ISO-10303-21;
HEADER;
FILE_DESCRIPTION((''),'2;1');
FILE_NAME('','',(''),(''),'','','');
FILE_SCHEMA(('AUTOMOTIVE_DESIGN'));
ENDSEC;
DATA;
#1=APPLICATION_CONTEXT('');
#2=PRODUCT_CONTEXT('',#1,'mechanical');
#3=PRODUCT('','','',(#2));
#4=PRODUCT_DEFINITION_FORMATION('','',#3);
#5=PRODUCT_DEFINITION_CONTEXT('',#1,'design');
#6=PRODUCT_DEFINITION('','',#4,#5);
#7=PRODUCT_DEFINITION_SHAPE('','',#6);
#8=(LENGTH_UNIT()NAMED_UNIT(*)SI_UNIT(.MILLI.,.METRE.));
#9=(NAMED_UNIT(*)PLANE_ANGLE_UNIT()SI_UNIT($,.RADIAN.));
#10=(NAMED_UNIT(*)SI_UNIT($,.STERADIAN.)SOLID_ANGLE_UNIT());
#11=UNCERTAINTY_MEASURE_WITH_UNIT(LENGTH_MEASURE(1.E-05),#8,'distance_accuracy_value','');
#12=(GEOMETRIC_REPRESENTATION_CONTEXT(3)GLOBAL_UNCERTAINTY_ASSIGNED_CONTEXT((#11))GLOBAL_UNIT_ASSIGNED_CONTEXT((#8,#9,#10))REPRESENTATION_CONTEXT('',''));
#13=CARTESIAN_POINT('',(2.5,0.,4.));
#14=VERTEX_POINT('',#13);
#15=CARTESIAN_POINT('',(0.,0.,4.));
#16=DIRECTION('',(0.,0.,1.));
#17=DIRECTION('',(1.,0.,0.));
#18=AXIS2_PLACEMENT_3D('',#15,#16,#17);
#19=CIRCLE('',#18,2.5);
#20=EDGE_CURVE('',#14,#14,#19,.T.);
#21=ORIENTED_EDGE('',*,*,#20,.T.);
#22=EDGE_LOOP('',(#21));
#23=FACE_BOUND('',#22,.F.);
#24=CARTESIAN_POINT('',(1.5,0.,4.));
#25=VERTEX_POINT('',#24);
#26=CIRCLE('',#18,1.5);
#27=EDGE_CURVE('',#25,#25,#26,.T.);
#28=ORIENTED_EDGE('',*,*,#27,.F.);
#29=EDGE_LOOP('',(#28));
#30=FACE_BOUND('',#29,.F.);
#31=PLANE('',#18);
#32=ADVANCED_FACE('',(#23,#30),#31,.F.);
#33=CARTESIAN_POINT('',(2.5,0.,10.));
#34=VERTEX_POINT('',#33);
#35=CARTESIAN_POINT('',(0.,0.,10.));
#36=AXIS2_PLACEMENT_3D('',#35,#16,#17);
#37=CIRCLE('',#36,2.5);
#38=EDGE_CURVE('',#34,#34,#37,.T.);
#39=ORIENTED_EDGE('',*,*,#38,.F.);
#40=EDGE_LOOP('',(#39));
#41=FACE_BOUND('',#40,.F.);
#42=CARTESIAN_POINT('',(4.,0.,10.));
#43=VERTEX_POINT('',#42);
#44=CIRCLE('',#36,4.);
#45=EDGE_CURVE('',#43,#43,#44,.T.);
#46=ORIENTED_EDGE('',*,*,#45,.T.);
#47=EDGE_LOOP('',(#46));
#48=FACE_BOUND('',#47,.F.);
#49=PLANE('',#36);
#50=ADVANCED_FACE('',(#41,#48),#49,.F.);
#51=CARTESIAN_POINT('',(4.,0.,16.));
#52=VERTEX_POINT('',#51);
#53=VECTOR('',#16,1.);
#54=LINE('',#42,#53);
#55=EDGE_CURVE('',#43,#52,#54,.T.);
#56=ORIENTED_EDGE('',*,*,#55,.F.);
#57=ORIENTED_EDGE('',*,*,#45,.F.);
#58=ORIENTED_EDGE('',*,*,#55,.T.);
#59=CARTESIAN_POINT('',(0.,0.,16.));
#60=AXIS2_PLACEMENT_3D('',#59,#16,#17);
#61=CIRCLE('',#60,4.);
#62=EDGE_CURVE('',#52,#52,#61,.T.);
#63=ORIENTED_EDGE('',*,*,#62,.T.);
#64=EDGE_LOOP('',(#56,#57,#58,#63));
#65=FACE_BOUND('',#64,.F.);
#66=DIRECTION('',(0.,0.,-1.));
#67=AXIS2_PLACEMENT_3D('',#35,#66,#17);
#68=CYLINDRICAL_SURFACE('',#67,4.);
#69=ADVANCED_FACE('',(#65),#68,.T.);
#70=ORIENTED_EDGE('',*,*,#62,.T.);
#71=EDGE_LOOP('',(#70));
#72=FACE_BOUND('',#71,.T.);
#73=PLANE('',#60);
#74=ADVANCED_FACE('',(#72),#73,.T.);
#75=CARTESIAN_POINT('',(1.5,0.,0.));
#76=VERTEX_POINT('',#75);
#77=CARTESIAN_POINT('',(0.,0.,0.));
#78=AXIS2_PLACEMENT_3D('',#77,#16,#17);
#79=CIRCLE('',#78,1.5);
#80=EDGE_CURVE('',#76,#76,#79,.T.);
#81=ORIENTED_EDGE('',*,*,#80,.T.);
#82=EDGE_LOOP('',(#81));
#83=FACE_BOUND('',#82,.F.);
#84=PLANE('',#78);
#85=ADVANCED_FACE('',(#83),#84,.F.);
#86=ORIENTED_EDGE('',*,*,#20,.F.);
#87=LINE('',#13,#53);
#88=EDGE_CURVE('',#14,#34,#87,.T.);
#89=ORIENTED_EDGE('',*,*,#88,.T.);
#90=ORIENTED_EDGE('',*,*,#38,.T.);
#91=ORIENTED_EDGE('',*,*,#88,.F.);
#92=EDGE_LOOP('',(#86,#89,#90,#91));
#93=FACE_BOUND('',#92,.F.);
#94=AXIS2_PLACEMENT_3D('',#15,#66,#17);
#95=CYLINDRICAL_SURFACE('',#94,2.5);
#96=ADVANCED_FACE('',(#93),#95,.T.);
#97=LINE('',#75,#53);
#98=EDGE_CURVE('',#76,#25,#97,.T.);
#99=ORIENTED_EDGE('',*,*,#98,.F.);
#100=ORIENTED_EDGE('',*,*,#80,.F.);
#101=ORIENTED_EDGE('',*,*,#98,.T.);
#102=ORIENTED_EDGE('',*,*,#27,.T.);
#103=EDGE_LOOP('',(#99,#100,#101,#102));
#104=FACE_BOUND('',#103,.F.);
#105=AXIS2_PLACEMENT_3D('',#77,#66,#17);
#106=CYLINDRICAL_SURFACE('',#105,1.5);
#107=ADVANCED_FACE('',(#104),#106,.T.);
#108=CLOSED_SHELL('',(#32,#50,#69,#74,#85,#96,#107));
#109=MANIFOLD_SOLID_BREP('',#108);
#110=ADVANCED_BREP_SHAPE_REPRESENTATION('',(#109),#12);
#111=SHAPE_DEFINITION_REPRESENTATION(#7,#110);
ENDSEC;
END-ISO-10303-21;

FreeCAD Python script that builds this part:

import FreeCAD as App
import Part
import Sketcher
from FreeCAD import Vector
Q = App.Units.Quantity

doc = App.newDocument("Part")
body = doc.addObject("PartDesign::Body", "Body")

# Sketch on XY plane
sketch1 = body.newObject("Sketcher::SketchObject", "Sketch")
sketch1.AttachmentSupport = (doc.getObject("XY_Plane"), [""])
sketch1.MapMode = "FlatFace"
sketch1.addGeometry(Part.Circle(Vector(0, 0, 0), Vector(0, 0, 1), 1.5), False)
sketch1.addConstraint(Sketcher.Constraint("Coincident", 0, 3, -1, 1))
sketch1.addConstraint(Sketcher.Constraint("Diameter", 0, Q("3 mm")))
pad1 = body.newObject("PartDesign::Pad", "Pad")
pad1.Profile = sketch1
pad1.Length = 4

# Sketch on XY plane
sketch2 = body.newObject("Sketcher::SketchObject", "Sketch001")
sketch2.AttachmentSupport = (doc.getObject("XY_Plane"), [""])
sketch2.MapMode = "FlatFace"
sketch2.AttachmentOffset = App.Placement(Vector(0, 0, 4), App.Rotation())
sketch2.addGeometry(Part.Circle(Vector(0, 0, 0), Vector(0, 0, 1), 2.5), False)
sketch2.addConstraint(Sketcher.Constraint("Coincident", 0, 3, -1, 1))
sketch2.addConstraint(Sketcher.Constraint("Diameter", 0, Q("5 mm")))
pad2 = body.newObject("PartDesign::Pad", "Pad001")
pad2.Profile = sketch2
pad2.Length = 6

# Sketch on XY plane
sketch3 = body.newObject("Sketcher::SketchObject", "Sketch002")
sketch3.AttachmentSupport = (doc.getObject("XY_Plane"), [""])
sketch3.MapMode = "FlatFace"
sketch3.AttachmentOffset = App.Placement(Vector(0, 0, 10), App.Rotation())
sketch3.addGeometry(Part.Circle(Vector(0, 0, 0), Vector(0, 0, 1), 4), False)
sketch3.addConstraint(Sketcher.Constraint("Coincident", 0, 3, -1, 1))
sketch3.addConstraint(Sketcher.Constraint("Diameter", 0, Q("8 mm")))
pad3 = body.newObject("PartDesign::Pad", "Pad002")
pad3.Profile = sketch3
pad3.Length = 6

doc.recompute()
